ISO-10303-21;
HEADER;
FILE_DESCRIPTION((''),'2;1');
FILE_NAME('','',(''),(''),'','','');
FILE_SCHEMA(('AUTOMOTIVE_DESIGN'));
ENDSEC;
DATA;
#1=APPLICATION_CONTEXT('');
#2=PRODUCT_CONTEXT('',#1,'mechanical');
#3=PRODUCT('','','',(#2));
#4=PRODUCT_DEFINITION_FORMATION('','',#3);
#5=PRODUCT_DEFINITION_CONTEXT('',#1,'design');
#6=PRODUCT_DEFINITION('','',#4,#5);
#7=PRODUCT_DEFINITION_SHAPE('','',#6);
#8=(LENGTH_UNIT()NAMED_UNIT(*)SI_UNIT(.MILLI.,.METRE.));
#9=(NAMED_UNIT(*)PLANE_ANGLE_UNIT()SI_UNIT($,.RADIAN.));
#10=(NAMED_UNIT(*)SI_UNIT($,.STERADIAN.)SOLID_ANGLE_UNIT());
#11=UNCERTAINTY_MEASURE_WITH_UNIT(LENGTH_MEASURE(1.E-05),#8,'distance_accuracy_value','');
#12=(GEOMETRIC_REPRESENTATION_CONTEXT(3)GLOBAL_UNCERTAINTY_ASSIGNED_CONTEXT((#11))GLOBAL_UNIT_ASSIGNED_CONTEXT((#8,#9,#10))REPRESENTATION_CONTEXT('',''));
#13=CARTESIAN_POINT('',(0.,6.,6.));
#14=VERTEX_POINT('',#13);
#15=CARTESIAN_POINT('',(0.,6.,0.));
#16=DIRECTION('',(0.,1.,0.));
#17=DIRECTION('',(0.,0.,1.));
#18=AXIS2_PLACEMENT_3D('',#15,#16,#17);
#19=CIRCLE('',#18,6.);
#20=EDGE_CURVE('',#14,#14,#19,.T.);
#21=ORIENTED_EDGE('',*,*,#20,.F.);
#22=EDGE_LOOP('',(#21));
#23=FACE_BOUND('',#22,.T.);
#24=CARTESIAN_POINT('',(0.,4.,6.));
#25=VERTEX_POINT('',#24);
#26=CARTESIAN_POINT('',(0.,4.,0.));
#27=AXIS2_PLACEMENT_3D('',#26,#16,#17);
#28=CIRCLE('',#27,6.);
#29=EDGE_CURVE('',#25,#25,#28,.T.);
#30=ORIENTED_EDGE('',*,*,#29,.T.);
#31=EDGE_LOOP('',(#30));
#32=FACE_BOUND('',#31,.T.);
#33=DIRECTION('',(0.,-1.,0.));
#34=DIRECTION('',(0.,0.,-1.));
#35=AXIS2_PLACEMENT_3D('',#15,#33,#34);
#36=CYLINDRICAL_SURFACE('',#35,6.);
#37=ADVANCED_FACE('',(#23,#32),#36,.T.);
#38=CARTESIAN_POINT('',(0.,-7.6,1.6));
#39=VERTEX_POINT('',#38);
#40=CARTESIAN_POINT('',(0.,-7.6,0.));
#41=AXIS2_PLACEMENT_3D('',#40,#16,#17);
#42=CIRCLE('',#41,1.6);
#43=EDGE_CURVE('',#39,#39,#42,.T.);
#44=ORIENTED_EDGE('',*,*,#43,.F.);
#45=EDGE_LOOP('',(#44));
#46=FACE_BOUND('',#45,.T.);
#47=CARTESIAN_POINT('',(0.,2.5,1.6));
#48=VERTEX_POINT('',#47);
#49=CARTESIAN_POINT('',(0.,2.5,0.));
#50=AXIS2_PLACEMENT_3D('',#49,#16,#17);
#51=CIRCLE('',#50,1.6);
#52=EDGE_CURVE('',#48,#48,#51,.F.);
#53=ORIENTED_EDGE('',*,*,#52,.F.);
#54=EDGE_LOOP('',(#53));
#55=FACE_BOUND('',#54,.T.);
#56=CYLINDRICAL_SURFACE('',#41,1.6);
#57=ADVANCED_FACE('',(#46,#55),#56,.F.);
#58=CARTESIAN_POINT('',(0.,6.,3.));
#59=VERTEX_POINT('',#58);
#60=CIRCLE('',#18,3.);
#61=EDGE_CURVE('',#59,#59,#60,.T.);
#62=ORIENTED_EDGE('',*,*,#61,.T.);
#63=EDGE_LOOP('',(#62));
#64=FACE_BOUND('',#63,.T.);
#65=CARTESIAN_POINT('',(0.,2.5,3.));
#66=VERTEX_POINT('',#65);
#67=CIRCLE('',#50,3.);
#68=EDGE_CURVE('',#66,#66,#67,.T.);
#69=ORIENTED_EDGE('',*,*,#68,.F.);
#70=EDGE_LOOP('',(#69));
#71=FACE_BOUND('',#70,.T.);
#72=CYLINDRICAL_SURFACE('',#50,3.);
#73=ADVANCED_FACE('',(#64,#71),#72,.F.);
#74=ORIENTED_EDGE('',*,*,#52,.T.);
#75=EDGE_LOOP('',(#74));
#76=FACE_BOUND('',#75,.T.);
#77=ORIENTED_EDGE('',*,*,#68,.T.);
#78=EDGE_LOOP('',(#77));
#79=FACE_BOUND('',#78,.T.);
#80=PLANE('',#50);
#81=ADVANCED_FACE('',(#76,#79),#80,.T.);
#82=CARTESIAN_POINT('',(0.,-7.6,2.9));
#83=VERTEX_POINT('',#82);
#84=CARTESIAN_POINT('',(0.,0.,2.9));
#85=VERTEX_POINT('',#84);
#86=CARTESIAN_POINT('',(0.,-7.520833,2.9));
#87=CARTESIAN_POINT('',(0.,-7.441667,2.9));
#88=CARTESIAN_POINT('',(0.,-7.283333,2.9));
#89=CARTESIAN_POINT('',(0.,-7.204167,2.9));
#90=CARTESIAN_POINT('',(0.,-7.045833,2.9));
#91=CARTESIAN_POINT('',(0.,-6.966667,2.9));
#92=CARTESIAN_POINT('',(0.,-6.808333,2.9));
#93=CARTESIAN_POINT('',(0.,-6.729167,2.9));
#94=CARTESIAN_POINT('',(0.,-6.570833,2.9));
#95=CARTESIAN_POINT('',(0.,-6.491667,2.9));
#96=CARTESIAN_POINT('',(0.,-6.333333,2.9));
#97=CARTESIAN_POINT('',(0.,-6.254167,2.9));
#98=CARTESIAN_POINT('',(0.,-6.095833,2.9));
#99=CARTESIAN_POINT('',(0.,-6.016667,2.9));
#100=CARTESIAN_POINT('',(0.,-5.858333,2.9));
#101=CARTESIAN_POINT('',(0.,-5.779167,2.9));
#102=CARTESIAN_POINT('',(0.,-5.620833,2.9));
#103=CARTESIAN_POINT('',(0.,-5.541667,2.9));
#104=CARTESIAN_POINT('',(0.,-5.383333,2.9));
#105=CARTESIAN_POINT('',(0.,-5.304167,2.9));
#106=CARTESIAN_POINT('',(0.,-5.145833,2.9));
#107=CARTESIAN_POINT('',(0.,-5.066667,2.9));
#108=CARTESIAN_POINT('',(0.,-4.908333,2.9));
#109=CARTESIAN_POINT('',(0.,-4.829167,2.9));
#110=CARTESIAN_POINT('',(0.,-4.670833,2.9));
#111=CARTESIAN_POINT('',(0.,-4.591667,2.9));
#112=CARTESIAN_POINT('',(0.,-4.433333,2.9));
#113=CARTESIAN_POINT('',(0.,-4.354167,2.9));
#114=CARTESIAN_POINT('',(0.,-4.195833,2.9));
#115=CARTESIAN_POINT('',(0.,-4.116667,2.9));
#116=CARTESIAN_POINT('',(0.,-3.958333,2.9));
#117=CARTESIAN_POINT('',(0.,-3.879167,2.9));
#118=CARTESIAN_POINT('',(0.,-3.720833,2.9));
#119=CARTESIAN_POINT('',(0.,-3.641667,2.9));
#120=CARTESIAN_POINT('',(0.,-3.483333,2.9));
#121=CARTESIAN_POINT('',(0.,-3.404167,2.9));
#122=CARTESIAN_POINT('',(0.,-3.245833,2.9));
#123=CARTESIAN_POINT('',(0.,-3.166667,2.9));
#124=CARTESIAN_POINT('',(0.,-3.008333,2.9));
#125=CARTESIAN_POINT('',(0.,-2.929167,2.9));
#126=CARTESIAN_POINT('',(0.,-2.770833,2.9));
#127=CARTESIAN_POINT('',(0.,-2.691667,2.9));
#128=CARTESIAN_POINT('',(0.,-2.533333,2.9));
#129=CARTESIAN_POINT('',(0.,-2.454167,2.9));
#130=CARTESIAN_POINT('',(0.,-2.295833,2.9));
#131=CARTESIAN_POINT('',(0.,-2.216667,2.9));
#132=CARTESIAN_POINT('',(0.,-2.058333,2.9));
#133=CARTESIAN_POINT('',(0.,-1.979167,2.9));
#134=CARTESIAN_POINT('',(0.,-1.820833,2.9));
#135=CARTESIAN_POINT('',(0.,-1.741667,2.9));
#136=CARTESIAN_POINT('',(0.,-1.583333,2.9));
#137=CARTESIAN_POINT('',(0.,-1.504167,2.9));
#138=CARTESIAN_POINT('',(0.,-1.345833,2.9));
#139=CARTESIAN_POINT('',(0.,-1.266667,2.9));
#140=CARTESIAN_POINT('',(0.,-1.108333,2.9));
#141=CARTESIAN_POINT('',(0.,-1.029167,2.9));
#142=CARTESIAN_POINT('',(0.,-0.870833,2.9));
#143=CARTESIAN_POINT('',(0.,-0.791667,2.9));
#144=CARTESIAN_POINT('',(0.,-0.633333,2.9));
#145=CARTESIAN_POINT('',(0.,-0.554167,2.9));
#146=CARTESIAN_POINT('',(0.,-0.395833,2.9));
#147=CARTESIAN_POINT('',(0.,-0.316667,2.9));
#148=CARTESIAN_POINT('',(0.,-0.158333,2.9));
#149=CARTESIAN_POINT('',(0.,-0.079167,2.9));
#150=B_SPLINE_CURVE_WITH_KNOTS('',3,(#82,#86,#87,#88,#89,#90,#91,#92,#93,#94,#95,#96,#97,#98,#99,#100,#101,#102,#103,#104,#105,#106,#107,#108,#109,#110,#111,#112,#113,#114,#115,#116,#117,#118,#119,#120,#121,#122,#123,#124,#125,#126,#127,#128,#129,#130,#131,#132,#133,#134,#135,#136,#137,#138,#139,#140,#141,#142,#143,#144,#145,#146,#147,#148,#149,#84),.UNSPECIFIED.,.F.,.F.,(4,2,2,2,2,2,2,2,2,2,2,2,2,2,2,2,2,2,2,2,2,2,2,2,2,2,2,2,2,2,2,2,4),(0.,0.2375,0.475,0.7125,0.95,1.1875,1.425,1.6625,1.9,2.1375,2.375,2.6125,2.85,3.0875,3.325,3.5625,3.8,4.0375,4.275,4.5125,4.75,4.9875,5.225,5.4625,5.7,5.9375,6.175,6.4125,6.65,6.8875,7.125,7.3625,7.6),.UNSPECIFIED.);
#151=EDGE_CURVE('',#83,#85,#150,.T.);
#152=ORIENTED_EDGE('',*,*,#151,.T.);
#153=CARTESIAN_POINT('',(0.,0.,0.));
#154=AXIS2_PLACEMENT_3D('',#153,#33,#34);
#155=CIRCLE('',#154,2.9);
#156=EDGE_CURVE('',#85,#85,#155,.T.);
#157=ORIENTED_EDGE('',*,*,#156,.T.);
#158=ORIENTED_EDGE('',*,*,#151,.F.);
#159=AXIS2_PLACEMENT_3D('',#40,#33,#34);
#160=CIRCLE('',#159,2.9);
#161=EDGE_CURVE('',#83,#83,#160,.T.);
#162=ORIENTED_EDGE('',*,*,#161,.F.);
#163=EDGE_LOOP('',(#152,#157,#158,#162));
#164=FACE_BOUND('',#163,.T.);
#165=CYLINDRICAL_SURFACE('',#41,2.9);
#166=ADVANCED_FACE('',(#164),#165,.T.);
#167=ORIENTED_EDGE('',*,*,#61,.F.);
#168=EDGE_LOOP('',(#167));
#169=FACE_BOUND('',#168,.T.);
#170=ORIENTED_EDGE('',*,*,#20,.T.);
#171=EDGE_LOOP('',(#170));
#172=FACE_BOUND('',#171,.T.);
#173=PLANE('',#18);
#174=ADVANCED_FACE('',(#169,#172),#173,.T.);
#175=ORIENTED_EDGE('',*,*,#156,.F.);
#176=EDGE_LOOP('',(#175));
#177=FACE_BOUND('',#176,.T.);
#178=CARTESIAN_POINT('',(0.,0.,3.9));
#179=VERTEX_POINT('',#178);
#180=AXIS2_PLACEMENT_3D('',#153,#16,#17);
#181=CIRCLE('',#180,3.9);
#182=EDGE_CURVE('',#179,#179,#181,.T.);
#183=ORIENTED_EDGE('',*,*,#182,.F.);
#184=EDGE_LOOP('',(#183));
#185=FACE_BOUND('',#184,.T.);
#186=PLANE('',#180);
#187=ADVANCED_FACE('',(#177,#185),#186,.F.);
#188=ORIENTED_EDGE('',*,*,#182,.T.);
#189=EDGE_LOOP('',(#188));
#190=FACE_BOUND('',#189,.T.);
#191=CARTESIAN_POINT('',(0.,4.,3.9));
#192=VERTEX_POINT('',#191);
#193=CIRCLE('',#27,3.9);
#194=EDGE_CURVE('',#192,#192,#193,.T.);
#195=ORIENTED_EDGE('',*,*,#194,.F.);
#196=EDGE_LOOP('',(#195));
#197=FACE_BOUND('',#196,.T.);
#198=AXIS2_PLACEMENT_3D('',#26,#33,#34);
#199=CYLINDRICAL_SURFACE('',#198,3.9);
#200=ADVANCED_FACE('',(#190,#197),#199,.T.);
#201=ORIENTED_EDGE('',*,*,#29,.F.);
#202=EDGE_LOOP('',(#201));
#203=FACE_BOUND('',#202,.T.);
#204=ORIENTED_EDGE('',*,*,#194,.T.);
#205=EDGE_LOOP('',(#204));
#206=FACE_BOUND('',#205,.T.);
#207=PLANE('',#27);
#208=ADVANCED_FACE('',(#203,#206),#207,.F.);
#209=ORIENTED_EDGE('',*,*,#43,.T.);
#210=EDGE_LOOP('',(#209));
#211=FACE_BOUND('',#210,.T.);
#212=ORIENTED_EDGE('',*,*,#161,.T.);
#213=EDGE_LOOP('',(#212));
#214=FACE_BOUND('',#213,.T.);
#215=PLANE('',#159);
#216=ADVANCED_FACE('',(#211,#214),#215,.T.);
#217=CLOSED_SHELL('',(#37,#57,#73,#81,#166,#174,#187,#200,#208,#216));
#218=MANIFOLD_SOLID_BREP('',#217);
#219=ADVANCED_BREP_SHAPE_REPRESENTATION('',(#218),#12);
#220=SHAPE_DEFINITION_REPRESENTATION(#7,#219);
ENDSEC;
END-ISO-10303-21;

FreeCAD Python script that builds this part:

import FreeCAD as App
import Part
import Sketcher
from FreeCAD import Vector
Q = App.Units.Quantity

doc = App.newDocument("Part")
body = doc.addObject("PartDesign::Body", "Body")

sketch1 = body.newObject("Sketcher::SketchObject", "Sketch")
sketch1.AttachmentSupport = (doc.getObject("XZ_Plane"), [""])
sketch1.MapMode = "FlatFace"
sketch1.addGeometry(Part.Circle(Vector(0, 0, 0), Vector(0, 0, 1), 3.9), False)
sketch1.addConstraint([
    Sketcher.Constraint("Coincident", 0, 3, -1, 1),
    Sketcher.Constraint("Diameter", 0, Q("7.8 mm")),
])
pad1 = body.newObject("PartDesign::Pad", "Pad")
pad1.Profile = sketch1
pad1.Length = 4
pad1.Reversed = True

sketch2 = body.newObject("Sketcher::SketchObject", "Sketch001")
sketch2.AttachmentSupport = (doc.getObject("XZ_Plane"), [""])
sketch2.MapMode = "FlatFace"
sketch2.AttachmentOffset = App.Placement(Vector(0, 0, -4), App.Rotation())
sketch2.addGeometry(Part.Circle(Vector(0, 0, 0), Vector(0, 0, 1), 6), False)
sketch2.addConstraint([
    Sketcher.Constraint("Coincident", 0, 3, -1, 1),
    Sketcher.Constraint("Diameter", 0, Q("12 mm")),
])
pad2 = body.newObject("PartDesign::Pad", "Pad001")
pad2.Profile = sketch2
pad2.Length = 2
pad2.Reversed = True

sketch3 = body.newObject("Sketcher::SketchObject", "Sketch002")
sketch3.AttachmentSupport = (doc.getObject("XZ_Plane"), [""])
sketch3.MapMode = "FlatFace"
sketch3.addGeometry(Part.Circle(Vector(0, 0, 0), Vector(0, 0, 1), 2.9), False)
sketch3.addConstraint([
    Sketcher.Constraint("Coincident", 0, 3, -1, 1),
    Sketcher.Constraint("Diameter", 0, Q("5.8 mm")),
])
pad3 = body.newObject("PartDesign::Pad", "Pad002")
pad3.Profile = sketch3
pad3.Length = 7.6

sketch4 = body.newObject("Sketcher::SketchObject", "Sketch003")
sketch4.AttachmentSupport = (doc.getObject("XZ_Plane"), [""])
sketch4.MapMode = "FlatFace"
sketch4.AttachmentOffset = App.Placement(Vector(0, 0, -6), App.Rotation())
sketch4.addGeometry(Part.Circle(Vector(0, 0, 0), Vector(0, 0, 1), 1.6), False)
sketch4.addConstraint([
    Sketcher.Constraint("Coincident", 0, 3, -1, 1),
    Sketcher.Constraint("Diameter", 0, Q("3.2 mm")),
])
pocket1 = body.newObject("PartDesign::Pocket", "Pocket")
pocket1.Profile = sketch4
pocket1.Type = "ThroughAll"
pocket1.Reversed = True

sketch5 = body.newObject("Sketcher::SketchObject", "Sketch004")
sketch5.AttachmentSupport = (doc.getObject("XZ_Plane"), [""])
sketch5.MapMode = "FlatFace"
sketch5.AttachmentOffset = App.Placement(Vector(0, 0, -6), App.Rotation())
sketch5.addGeometry(Part.Circle(Vector(0, 0, 0), Vector(0, 0, 1), 3), False)
sketch5.addConstraint([
    Sketcher.Constraint("Coincident", 0, 3, -1, 1),
    Sketcher.Constraint("Diameter", 0, Q("6 mm")),
])
pocket2 = body.newObject("PartDesign::Pocket", "Pocket001")
pocket2.Profile = sketch5
pocket2.Length = 3.5
pocket2.Reversed = True

doc.recompute()
